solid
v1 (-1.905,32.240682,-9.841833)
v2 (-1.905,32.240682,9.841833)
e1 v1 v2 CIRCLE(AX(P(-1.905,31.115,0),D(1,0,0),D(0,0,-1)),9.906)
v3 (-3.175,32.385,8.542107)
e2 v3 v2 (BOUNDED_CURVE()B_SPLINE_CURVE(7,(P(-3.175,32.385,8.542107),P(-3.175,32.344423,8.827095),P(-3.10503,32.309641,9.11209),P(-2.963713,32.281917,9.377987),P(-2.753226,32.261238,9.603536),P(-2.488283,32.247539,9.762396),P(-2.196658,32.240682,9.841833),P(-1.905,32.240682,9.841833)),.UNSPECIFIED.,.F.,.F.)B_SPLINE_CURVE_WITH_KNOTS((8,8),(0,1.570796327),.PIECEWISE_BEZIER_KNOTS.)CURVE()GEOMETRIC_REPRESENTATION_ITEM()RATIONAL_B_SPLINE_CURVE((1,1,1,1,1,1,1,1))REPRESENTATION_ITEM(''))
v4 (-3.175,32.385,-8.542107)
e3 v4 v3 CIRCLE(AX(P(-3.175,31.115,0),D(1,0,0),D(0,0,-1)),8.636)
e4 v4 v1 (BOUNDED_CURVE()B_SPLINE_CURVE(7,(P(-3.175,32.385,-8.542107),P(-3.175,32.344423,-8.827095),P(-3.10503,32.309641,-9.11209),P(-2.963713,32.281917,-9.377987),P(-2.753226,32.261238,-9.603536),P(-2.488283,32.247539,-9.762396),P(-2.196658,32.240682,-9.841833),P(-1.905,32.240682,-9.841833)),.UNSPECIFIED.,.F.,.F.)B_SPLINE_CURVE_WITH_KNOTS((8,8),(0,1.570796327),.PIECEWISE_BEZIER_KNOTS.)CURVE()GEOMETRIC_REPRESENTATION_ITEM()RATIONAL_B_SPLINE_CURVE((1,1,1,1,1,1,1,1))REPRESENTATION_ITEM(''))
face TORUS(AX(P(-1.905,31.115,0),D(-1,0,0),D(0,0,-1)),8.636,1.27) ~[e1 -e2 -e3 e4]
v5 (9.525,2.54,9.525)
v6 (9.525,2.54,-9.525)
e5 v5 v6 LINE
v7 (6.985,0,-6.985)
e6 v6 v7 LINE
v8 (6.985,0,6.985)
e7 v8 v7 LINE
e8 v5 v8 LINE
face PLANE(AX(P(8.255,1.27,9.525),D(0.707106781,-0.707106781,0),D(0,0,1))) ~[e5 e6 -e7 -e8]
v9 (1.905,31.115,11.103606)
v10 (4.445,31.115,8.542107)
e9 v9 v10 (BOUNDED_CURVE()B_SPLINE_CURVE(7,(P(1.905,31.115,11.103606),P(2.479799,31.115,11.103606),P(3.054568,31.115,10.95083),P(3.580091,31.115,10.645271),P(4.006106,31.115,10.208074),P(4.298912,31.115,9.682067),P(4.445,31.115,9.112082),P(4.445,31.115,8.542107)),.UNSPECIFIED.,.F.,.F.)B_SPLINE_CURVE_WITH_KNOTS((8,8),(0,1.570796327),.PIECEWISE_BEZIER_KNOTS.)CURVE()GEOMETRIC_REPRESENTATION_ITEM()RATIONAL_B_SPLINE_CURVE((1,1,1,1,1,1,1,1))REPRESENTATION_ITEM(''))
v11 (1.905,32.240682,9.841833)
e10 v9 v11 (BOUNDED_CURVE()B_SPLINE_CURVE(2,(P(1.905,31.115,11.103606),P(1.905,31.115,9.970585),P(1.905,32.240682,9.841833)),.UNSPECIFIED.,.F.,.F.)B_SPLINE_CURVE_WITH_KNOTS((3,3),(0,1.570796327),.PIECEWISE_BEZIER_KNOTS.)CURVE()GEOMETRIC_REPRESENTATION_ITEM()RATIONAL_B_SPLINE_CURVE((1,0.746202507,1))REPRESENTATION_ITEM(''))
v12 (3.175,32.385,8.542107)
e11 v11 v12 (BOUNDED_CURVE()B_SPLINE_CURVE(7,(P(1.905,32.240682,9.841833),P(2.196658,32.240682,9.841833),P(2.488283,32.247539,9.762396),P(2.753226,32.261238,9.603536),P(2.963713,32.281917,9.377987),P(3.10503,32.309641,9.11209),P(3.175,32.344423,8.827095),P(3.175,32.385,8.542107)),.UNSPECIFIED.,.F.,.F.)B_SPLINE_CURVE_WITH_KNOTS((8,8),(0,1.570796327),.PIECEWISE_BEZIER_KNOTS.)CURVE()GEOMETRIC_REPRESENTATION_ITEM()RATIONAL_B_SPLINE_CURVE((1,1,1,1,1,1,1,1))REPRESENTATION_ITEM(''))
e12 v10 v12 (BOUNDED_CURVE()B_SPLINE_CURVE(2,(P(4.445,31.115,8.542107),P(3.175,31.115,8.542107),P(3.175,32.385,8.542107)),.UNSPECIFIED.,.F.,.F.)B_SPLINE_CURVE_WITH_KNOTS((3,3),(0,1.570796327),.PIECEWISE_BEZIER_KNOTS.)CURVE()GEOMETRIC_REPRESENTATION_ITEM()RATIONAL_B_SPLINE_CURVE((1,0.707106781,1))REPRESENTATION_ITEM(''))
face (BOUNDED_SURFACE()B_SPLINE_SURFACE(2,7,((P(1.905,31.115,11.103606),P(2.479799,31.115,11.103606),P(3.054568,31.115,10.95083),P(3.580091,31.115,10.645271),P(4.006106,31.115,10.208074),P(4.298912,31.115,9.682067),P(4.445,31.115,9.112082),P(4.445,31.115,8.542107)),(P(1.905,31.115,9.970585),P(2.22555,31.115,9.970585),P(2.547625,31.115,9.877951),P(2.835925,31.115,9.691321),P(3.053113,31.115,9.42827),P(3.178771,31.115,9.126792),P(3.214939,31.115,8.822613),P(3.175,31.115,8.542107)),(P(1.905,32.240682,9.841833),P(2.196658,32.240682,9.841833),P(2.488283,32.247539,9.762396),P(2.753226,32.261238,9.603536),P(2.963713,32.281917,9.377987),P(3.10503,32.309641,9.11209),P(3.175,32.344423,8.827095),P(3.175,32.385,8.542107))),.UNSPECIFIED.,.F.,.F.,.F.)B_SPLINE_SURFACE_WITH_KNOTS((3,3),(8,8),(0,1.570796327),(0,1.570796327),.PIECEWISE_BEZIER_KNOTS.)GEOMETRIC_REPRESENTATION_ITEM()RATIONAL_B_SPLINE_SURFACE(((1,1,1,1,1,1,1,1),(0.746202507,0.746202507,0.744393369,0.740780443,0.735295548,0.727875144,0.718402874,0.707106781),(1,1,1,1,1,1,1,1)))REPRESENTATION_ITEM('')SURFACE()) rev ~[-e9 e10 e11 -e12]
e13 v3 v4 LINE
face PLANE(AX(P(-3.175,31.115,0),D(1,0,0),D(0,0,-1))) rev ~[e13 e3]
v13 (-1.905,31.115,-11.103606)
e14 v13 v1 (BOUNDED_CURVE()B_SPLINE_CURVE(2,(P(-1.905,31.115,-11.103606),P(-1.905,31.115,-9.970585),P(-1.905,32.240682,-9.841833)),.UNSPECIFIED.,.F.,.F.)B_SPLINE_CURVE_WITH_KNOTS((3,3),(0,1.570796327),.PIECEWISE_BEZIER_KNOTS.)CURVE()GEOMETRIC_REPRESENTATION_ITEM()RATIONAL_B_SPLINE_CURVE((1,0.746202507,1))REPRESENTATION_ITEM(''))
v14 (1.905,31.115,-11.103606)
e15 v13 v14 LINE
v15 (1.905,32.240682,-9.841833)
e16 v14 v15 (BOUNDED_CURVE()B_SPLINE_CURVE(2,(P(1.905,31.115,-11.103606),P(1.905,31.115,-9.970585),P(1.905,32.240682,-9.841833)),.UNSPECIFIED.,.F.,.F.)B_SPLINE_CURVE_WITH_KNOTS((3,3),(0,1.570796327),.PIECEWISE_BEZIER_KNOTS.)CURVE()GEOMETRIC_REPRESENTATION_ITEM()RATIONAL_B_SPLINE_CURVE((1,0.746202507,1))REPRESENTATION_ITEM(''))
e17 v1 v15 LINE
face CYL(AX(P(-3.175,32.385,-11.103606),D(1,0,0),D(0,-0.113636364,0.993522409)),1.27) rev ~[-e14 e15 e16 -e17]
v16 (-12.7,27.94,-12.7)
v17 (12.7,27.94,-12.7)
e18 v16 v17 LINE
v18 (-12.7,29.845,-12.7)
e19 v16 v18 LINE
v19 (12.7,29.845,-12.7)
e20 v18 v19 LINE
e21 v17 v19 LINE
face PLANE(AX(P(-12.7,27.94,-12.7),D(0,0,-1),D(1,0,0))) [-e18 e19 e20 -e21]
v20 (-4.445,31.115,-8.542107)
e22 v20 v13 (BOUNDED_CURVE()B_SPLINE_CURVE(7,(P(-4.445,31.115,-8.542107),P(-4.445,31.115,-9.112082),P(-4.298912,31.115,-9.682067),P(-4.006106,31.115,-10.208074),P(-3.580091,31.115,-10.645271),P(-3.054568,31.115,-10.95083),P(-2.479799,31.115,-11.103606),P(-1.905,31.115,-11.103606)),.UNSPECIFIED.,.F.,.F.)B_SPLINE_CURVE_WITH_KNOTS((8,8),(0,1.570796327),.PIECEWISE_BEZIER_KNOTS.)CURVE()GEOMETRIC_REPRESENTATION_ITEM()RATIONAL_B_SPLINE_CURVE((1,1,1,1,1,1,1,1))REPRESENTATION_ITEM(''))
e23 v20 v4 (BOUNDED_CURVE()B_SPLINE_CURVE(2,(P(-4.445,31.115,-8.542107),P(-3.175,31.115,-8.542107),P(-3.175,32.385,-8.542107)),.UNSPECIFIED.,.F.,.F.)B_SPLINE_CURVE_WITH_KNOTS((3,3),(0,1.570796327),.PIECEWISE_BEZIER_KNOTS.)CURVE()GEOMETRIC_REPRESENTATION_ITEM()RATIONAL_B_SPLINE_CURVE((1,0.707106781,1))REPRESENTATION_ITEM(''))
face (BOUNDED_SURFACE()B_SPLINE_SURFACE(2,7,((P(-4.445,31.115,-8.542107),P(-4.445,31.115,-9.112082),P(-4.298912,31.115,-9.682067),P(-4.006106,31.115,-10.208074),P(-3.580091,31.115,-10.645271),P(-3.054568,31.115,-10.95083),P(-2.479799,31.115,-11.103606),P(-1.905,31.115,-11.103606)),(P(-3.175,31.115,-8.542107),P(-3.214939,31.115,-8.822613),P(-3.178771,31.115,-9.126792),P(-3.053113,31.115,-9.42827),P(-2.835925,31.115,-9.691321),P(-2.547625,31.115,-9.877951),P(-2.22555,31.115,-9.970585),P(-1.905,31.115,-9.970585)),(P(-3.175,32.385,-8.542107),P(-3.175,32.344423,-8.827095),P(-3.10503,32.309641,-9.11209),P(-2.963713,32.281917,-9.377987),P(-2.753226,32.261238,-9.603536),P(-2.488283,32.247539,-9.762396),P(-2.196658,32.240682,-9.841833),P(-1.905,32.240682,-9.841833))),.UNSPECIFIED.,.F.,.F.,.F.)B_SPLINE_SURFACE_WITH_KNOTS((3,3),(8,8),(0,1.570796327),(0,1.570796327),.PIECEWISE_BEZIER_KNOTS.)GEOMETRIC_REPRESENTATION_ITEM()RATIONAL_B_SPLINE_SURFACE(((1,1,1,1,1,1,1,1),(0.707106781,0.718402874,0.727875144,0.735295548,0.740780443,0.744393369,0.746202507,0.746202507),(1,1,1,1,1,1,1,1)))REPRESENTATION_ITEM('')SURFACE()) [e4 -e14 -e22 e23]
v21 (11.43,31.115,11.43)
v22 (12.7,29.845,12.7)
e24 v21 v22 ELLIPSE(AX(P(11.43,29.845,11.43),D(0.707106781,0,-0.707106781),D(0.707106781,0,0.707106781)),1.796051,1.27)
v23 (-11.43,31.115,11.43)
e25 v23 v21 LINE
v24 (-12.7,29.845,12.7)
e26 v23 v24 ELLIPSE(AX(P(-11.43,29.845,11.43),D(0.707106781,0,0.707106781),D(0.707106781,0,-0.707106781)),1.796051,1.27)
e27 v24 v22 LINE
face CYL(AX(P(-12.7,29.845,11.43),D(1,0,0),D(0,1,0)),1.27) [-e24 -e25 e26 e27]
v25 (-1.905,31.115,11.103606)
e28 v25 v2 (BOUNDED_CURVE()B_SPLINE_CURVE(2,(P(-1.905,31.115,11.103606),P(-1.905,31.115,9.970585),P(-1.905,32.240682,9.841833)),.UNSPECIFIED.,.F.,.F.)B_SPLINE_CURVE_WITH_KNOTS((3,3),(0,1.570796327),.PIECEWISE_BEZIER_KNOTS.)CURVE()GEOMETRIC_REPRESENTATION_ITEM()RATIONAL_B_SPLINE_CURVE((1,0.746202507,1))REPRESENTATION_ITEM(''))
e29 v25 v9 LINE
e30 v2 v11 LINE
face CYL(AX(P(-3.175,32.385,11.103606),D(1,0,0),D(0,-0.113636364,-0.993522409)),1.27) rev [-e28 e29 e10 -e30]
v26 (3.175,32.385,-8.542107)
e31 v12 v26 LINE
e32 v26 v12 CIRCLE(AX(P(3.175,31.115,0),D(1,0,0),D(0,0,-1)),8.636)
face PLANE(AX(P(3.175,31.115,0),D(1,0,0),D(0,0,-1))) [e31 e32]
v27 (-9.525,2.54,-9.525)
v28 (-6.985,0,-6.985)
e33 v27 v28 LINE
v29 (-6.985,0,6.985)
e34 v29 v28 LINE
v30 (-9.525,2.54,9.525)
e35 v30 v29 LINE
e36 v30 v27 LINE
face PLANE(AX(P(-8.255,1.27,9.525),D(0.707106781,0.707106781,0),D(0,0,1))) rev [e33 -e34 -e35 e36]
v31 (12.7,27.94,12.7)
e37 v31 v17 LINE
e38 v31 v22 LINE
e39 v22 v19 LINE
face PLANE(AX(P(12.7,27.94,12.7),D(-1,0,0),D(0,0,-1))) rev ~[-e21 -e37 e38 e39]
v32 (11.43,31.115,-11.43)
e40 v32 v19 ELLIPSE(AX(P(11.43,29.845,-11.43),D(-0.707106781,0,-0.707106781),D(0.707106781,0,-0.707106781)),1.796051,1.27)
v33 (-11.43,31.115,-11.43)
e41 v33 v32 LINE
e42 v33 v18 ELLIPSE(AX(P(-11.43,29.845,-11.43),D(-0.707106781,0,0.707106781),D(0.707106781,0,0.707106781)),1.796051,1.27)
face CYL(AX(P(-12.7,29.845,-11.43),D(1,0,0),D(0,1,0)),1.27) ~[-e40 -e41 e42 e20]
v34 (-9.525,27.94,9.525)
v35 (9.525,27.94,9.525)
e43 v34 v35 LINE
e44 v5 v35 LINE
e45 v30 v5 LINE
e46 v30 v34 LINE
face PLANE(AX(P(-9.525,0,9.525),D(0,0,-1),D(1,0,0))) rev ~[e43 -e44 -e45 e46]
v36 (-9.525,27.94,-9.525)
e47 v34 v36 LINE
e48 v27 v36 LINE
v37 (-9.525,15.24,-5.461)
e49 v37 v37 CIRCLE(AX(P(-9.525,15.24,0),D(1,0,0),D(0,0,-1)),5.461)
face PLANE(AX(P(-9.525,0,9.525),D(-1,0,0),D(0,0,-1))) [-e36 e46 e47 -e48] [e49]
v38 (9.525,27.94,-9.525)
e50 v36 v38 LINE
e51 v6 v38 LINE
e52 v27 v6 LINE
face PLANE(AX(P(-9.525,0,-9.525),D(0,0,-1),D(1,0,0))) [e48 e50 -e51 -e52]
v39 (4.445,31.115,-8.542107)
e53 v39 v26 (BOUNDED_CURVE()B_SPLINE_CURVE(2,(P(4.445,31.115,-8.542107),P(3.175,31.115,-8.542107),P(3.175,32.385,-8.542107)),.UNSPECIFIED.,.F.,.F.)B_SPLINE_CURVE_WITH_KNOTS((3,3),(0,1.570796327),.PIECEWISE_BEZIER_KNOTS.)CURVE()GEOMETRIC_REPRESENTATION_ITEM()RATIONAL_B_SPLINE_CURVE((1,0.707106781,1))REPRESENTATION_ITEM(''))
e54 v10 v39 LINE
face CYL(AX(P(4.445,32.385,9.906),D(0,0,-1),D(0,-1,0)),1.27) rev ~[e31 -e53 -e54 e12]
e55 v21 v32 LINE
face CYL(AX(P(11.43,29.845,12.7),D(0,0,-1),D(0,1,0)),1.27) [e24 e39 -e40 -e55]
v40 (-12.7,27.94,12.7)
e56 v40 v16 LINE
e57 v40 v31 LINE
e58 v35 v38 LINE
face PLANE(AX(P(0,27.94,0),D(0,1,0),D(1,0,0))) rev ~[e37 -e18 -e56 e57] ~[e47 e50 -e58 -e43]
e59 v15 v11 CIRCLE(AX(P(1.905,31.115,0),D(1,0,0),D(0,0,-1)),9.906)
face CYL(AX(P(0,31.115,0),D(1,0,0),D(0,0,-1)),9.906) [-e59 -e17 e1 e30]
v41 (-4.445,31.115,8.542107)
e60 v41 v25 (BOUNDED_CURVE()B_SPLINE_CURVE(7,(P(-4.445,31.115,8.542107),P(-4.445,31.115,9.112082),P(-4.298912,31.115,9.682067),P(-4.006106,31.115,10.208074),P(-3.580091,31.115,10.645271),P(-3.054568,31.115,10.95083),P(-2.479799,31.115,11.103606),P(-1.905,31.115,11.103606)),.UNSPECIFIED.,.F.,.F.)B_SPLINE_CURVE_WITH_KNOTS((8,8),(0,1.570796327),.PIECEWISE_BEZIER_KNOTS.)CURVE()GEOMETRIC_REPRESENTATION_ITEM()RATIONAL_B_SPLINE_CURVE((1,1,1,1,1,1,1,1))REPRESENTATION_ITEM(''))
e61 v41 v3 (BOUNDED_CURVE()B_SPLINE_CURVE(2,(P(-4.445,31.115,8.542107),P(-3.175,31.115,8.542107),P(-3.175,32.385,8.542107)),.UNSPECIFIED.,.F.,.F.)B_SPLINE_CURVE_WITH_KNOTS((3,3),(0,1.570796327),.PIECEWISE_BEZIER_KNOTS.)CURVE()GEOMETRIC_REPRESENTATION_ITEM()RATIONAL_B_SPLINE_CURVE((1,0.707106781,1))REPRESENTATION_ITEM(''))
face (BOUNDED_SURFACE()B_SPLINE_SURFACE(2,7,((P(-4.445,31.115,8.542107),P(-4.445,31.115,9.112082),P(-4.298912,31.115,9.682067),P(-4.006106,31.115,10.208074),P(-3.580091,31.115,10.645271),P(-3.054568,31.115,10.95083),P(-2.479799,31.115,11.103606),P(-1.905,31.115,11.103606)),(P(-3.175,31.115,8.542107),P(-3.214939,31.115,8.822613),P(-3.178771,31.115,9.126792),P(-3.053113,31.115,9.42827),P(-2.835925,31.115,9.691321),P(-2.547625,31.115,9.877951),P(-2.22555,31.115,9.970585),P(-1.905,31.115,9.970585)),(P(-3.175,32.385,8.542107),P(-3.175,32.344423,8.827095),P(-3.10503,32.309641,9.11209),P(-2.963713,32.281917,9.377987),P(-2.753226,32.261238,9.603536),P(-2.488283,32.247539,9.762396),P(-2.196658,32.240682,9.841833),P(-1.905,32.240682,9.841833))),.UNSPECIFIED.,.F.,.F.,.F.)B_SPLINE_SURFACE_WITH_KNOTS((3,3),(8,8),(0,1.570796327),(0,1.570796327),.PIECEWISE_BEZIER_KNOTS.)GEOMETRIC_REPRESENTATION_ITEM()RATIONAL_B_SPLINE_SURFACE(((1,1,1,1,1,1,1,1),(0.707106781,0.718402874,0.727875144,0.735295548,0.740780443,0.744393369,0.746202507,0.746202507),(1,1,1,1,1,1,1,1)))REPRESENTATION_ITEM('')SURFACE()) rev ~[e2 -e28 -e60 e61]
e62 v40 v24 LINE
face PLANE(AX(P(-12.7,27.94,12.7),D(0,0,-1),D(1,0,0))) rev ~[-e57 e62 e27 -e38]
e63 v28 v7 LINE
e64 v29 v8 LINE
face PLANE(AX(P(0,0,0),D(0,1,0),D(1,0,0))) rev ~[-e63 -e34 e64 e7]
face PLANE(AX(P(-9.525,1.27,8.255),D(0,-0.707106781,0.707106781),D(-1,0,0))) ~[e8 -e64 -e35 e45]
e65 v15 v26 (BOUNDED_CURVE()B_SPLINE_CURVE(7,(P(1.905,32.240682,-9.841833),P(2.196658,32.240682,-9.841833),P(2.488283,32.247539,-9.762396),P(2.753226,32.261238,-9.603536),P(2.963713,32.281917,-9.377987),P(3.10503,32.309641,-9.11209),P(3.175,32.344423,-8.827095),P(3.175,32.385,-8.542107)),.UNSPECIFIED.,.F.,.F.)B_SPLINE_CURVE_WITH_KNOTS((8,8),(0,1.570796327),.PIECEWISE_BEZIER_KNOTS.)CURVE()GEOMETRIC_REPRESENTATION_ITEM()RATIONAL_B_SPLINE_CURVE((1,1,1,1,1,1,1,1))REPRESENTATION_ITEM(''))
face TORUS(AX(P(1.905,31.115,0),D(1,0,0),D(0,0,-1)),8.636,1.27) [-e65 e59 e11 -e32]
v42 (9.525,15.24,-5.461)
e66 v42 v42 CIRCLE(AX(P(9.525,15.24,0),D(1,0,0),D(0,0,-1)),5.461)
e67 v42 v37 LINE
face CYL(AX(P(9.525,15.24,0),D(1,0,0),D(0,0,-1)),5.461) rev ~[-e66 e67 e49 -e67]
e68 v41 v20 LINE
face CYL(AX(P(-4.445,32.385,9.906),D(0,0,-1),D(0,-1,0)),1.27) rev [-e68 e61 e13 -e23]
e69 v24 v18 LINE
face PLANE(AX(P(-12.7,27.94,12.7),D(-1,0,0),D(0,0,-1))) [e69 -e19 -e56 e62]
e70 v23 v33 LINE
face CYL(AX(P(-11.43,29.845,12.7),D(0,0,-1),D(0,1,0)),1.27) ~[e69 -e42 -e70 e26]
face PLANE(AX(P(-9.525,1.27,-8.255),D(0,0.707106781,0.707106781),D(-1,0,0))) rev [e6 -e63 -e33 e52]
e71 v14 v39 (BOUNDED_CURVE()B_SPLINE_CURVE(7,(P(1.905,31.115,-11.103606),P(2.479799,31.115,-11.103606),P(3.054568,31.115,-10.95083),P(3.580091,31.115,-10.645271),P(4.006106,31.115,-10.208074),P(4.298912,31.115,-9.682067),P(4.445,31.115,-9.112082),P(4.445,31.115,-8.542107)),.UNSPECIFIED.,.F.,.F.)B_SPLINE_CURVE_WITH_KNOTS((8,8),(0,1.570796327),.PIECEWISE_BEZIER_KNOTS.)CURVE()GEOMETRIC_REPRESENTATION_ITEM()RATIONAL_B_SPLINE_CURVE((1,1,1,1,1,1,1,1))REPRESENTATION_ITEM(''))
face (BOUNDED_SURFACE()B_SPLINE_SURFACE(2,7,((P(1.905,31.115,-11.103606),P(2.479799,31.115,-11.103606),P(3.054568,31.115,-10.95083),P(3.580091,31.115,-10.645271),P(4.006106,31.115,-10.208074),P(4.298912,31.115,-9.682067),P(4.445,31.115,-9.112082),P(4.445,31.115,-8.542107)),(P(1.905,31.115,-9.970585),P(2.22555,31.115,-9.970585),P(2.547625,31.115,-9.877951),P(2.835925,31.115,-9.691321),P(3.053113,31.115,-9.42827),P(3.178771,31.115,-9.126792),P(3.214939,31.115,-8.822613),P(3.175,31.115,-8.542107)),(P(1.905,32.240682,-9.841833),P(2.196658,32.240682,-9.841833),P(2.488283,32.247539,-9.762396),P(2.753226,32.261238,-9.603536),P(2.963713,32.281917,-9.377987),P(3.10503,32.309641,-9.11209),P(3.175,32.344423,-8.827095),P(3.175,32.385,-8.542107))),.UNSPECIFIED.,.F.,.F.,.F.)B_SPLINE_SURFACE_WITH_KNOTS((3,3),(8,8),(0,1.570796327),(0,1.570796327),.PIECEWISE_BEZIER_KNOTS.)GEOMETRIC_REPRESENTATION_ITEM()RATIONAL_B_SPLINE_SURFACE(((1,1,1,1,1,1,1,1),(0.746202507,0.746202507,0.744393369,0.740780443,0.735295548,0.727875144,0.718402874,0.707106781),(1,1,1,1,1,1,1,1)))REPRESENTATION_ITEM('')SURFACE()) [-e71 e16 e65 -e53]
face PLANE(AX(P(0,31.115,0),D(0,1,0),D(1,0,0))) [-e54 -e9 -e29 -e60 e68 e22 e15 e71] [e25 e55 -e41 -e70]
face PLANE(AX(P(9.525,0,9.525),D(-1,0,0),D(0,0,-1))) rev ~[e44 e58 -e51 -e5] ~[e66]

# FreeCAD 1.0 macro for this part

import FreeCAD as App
import Part
import Sketcher
Q = App.Units.Quantity


def edges_at(feature, points):
    """Names of the edges that pass closest to the given points."""
    edges = feature.Shape.Edges
    near = lambda p: min(range(len(edges)), key=lambda i: edges[i].distToShape(Part.Vertex(*p))[0])
    return sorted({f"Edge{near(p) + 1}" for p in points})


def add_polygon(sketch, points):
    """Adds a closed chain of lines whose ends are joined by coincident constraints."""
    first, n = sketch.GeometryCount, len(points)
    for a, b in zip(points, points[1:] + points[:1]):
        sketch.addGeometry(Part.LineSegment(App.Vector(*a, 0), App.Vector(*b, 0)), False)
    for i in range(n):
        sketch.addConstraint(Sketcher.Constraint("Coincident", first + i, 2, first + (i + 1) % n, 1))

doc = App.newDocument("Part")
body = doc.addObject("PartDesign::Body", "Body")

sketch1 = body.newObject("Sketcher::SketchObject", "Sketch")
sketch1.AttachmentSupport = (doc.getObject("XZ_Plane"), [""])
sketch1.MapMode = "FlatFace"
add_polygon(sketch1, [(-10, -10), (-10, 10), (10, 10), (10, -10)])
sketch1.addConstraint([
    Sketcher.Constraint("Vertical", 0),
    Sketcher.Constraint("Horizontal", 1),
    Sketcher.Constraint("Vertical", 2),
    Sketcher.Constraint("Horizontal", 3),
    Sketcher.Constraint("Symmetric", 0, 2, 2, 2, -1, 1),
    Sketcher.Constraint("Equal", 3, 0),
    Sketcher.Constraint("DistanceX", 1, 1, 1, 2, Q("0.75 in")),
])
pad1 = body.newObject("PartDesign::Pad", "Pad")
pad1.Profile = sketch1
pad1.Length = Q("1.1 in")
pad1.Reversed = True

sketch2 = body.newObject("Sketcher::SketchObject", "Sketch001")
sketch2.AttachmentSupport = (doc.getObject("XZ_Plane"), [""])
sketch2.MapMode = "FlatFace"
sketch2.AttachmentOffset = App.Placement(App.Vector(0, 0, -1.1 * 25.4), App.Rotation())
add_polygon(sketch2, [(-13, -13), (-13, 13), (13, 13), (13, -13)])
sketch2.addConstraint([
    Sketcher.Constraint("Vertical", 0),
    Sketcher.Constraint("Horizontal", 1),
    Sketcher.Constraint("Vertical", 2),
    Sketcher.Constraint("Horizontal", 3),
    Sketcher.Constraint("Symmetric", 0, 2, 2, 2, -1, 1),
    Sketcher.Constraint("Equal", 3, 0),
    Sketcher.Constraint("DistanceX", 1, 1, 1, 2, Q("1 in")),
])
pad2 = body.newObject("PartDesign::Pad", "Pad001")
pad2.Profile = sketch2
pad2.Length = Q("0.125 in")
pad2.Reversed = True

sketch3 = body.newObject("Sketcher::SketchObject", "Sketch002")
sketch3.AttachmentSupport = (doc.getObject("YZ_Plane"), [""])
sketch3.MapMode = "FlatFace"
sketch3.AttachmentOffset = App.Placement(App.Vector(0, 0, 0.375 * 25.4), App.Rotation())
sketch3.addGeometry(Part.Circle(App.Vector(15, 0, 0), App.Vector(0, 0, 1), 5), False)
sketch3.addConstraint([
    Sketcher.Constraint("PointOnObject", 0, 3, -1),
    Sketcher.Constraint("Diameter", 0, Q("0.43 in")),
    Sketcher.Constraint("DistanceX", -1, 1, 0, 3, Q("0.6 in")),
])
pocket1 = body.newObject("PartDesign::Pocket", "Pocket")
pocket1.Profile = sketch3
pocket1.Type = "ThroughAll"

sketch4 = body.newObject("Sketcher::SketchObject", "Sketch003")
sketch4.AttachmentSupport = (doc.getObject("YZ_Plane"), [""])
sketch4.MapMode = "FlatFace"
sketch4.addGeometry(Part.Circle(App.Vector(31, 0, 0), App.Vector(0, 0, 1), 10), False)
sketch4.addConstraint([
    Sketcher.Constraint("PointOnObject", 0, 3, -1),
    Sketcher.Constraint("Diameter", 0, Q("0.78 in")),
    Sketcher.Constraint("DistanceX", -1, 1, 0, 3, Q("1.225 in")),
])
pad3 = body.newObject("PartDesign::Pad", "Pad002")
pad3.Profile = sketch4
pad3.Length = Q("0.25 in")
pad3.Midplane = True
doc.recompute()

fillet = body.newObject("PartDesign::Fillet", "Fillet")
fillet.Base = (pad3, edges_at(pad3, [
    (0, 31.115, 12.7),
    (12.7, 31.115, 0),
    (0, 31.115, -12.7),
    (-12.7, 31.115, 0),
    (-3.175, 31.115, 0),
    (0, 31.115, 9.906),
    (0, 31.115, -9.906),
    (3.175, 31.115, 0),
    (-3.175, 41.021, 0),
    (3.175, 41.021, 0),
]))
fillet.Radius = Q("0.05 in")
doc.recompute()

chamfer = body.newObject("PartDesign::Chamfer", "Chamfer")
chamfer.Base = (fillet, edges_at(fillet, [
    (0, 0, 9.525),
    (-9.525, 0, 0),
    (0, 0, -9.525),
    (9.525, 0, 0),
]))
chamfer.Size = Q("0.1 in")

doc.recompute()
